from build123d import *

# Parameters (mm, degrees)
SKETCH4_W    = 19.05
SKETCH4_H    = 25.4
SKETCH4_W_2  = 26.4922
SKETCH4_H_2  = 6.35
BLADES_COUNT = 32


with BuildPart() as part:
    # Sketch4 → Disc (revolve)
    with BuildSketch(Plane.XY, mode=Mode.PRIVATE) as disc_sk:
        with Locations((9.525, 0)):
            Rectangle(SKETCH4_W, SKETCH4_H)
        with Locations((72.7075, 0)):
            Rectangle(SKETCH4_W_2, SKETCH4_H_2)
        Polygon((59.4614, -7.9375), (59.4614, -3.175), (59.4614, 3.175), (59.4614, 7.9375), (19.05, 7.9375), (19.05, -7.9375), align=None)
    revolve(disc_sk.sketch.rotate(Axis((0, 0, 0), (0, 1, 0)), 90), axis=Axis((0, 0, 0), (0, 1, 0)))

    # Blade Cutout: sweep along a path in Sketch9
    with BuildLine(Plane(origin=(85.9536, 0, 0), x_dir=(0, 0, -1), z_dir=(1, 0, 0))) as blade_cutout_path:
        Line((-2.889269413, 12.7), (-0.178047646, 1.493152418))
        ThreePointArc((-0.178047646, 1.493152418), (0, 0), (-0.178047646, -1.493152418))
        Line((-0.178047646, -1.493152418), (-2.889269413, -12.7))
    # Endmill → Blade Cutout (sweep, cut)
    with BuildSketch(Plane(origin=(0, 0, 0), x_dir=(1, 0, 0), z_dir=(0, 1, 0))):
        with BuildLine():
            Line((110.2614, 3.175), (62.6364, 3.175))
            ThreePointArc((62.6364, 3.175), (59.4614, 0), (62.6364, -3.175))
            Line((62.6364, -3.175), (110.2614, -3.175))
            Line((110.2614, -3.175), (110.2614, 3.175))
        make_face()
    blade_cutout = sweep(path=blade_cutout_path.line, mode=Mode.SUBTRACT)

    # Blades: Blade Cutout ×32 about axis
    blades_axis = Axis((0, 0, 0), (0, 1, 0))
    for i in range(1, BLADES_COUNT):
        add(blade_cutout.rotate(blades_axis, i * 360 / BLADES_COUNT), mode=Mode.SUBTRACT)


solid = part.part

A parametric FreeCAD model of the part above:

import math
import FreeCAD as App
import Part
import Sketcher

V = App.Vector
Q = App.Units.Quantity


def add_polygon(sketch, points):
    """Adds a closed chain of lines whose ends are joined by coincident constraints."""
    first, n = sketch.GeometryCount, len(points)
    for a, b in zip(points, points[1:] + points[:1]):
        sketch.addGeometry(Part.LineSegment(App.Vector(*a, 0), App.Vector(*b, 0)), False)
    for i in range(n):
        sketch.addConstraint(Sketcher.Constraint("Coincident", first + i, 2, first + (i + 1) % n, 1))

doc = App.newDocument("Part")
body = doc.addObject("PartDesign::Body", "Body")

sketch1 = doc.addObject("Sketcher::SketchObject", "Sketch")
body.addObject(sketch1)
sketch1.AttachmentSupport = (doc.XY_Plane, [""])
sketch1.MapMode = "FlatFace"
add_polygon(sketch1, [(0, 12.7), (0, -12.7), (19.1, -12.7), (19.1, -7.9), (59.5, -7.9), (59.5, -3.2), (86, -3.2), (86, 3.2), (59.5, 3.2), (59.5, 7.9), (19.1, 7.9), (19.1, 12.7)])
sketch1.addConstraint([
    Sketcher.Constraint("Vertical", 0),
    Sketcher.Constraint("Horizontal", 1),
    Sketcher.Constraint("Vertical", 2),
    Sketcher.Constraint("Horizontal", 3),
    Sketcher.Constraint("Vertical", 4),
    Sketcher.Constraint("Horizontal", 5),
    Sketcher.Constraint("Vertical", 6),
    Sketcher.Constraint("Horizontal", 7),
    Sketcher.Constraint("Vertical", 8),
    Sketcher.Constraint("Horizontal", 9),
    Sketcher.Constraint("Vertical", 10),
    Sketcher.Constraint("Horizontal", 11),
    Sketcher.Constraint("Symmetric", 0, 2, 11, 2, -1, 1),
    Sketcher.Constraint("Symmetric", 4, 2, 7, 2, -1),
    Sketcher.Constraint("Symmetric", 2, 2, 9, 2, -1),
    Sketcher.Constraint("Equal", 2, 4),
    Sketcher.Constraint("DistanceY", 0, 2, 0, 1, Q("1 in")),
    Sketcher.Constraint("DistanceX", 1, 1, 1, 2, Q("0.75 in")),
    Sketcher.Constraint("DistanceY", 6, 1, 6, 2, Q("0.25 in")),
    Sketcher.Constraint("DistanceX", 3, 1, 3, 2, Q("1.591 in")),
    Sketcher.Constraint("DistanceX", 5, 1, 5, 2, Q("1.043 in")),
])
revolution = doc.addObject("PartDesign::Revolution", "Revolution")
body.addObject(revolution)
revolution.Profile = sketch1
revolution.ReferenceAxis = (sketch1, ["V_Axis"])
revolution.Angle = 360

sketch2 = doc.addObject("Sketcher::SketchObject", "Sketch001")
body.addObject(sketch2)
sketch2.AttachmentSupport = (doc.XZ_Plane, [""])
sketch2.MapMode = "FlatFace"
sketch2.addGeometry([
    Part.LineSegment(V(110.3, -3.2, 0), V(62.6, -3.2, 0)),
    Part.ArcOfCircle(Part.Circle(V(62.6, 0, 0), V(0, 0, 1), 3.2), math.radians(90), math.radians(270)),
    Part.LineSegment(V(62.6, 3.2, 0), V(110.3, 3.2, 0)),
    Part.LineSegment(V(110.3, 3.2, 0), V(110.3, -3.2, 0)),
], False)
sketch2.addConstraint([
    Sketcher.Constraint("Tangent", 0, 2, 1, 2),
    Sketcher.Constraint("Tangent", 1, 1, 2, 1),
    Sketcher.Constraint("Coincident", 2, 2, 3, 1),
    Sketcher.Constraint("Coincident", 3, 2, 0, 1),
    Sketcher.Constraint("Horizontal", 0),
    Sketcher.Constraint("Horizontal", 2),
    Sketcher.Constraint("Vertical", 3),
    Sketcher.Constraint("PointOnObject", 1, 3, -1),
    Sketcher.Constraint("Radius", 1, Q("0.125 in")),
    Sketcher.Constraint("DistanceX", 0, 2, 0, 1, Q("1.875 in")),
    Sketcher.Constraint("DistanceX", -1, 1, 1, 3, Q("2.466 in")),
])

sketch3 = doc.addObject("Sketcher::SketchObject", "Sketch002")
body.addObject(sketch3)
sketch3.AttachmentSupport = (doc.YZ_Plane, [""])
sketch3.MapMode = "FlatFace"
sketch3.AttachmentOffset = App.Placement(V(0, 0, 3.384 * 25.4), App.Rotation())
sketch3.addGeometry([
    Part.LineSegment(V(12.7, 2.9, 0), V(1.5, 0.2, 0)),
    Part.ArcOfCircle(Part.Circle(V(0, 6.4, 0), V(0, 0, 1), 6.4), math.radians(-104), math.radians(-76)),
    Part.LineSegment(V(-1.5, 0.2, 0), V(-12.7, 2.9, 0)),
], False)
sketch3.addConstraint([
    Sketcher.Constraint("Tangent", 0, 2, 1, 2),
    Sketcher.Constraint("Tangent", 1, 1, 2, 1),
    Sketcher.Constraint("Symmetric", 0, 2, 1, 1, -2),
    Sketcher.Constraint("Horizontal", 0, 1, 2, 2),
    Sketcher.Constraint("Radius", 1, Q("0.25 in")),
    Sketcher.Constraint("DistanceX", 2, 2, 0, 1, Q("1 in")),
    Sketcher.Constraint("Angle", 0, Q("-166.4 deg")),
    Sketcher.Constraint("DistanceY", -1, 1, 1, 3, Q("0.25 in")),
])
doc.recompute()

subtractivepipe = doc.addObject("PartDesign::SubtractivePipe", "SubtractivePipe")
body.addObject(subtractivepipe)
subtractivepipe.Profile = sketch2
subtractivepipe.Spine = (sketch3, ["Edge1", "Edge2", "Edge3"])
doc.recompute()

polarpattern = doc.addObject("PartDesign::PolarPattern", "PolarPattern")
body.addObject(polarpattern)
polarpattern.Originals = [subtractivepipe]
polarpattern.Axis = (doc.Y_Axis, [""])
polarpattern.Angle = 360
polarpattern.Occurrences = 32
body.Tip = polarpattern

doc.recompute()
